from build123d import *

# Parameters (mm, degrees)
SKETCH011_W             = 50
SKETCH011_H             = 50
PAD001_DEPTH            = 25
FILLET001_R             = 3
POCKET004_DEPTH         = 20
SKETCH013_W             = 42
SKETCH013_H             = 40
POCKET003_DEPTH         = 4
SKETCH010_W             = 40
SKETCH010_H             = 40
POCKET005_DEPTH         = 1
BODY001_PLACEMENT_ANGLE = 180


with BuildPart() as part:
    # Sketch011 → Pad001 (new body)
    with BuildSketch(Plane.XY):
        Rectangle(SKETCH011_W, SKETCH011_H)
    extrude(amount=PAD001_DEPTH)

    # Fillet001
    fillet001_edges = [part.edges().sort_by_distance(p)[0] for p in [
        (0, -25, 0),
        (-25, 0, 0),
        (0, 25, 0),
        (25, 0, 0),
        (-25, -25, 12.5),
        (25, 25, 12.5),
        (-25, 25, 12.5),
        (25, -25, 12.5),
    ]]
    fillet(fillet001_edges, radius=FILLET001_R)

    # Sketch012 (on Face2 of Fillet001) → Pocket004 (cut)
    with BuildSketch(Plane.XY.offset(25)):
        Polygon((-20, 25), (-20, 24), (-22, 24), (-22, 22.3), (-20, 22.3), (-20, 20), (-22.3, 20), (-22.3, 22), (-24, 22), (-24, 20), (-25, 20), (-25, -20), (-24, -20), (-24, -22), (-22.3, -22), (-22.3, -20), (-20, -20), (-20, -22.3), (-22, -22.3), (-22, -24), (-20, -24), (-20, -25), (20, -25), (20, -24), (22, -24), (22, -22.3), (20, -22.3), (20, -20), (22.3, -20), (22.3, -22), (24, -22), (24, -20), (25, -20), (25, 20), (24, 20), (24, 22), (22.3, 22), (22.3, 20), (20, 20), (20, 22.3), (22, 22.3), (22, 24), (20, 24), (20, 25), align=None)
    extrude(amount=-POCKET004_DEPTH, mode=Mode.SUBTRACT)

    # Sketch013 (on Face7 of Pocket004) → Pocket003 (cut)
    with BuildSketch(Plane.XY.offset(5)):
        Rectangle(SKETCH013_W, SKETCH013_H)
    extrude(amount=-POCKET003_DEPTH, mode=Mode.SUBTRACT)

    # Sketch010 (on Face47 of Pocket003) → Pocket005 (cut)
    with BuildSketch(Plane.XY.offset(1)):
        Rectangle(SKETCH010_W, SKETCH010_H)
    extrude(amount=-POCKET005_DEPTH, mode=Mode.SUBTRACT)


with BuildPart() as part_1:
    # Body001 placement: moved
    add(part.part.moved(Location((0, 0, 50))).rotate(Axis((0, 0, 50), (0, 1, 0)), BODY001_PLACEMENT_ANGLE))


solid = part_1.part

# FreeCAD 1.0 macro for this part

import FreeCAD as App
import Part
import Sketcher
Q = App.Units.Quantity


def edges_at(feature, points):
    """Names of the edges that pass closest to the given points."""
    edges = feature.Shape.Edges
    near = lambda p: min(range(len(edges)), key=lambda i: edges[i].distToShape(Part.Vertex(*p))[0])
    return sorted({f"Edge{near(p) + 1}" for p in points})

doc = App.newDocument("Part")
params = doc.addObject("Spreadsheet::Sheet", "Params")
for row, (alias, value) in enumerate([
    ("sketch1_width", "50 mm"),
    ("pad1_length", "25 mm"),
    ("fillet_radius", "3 mm"),
    ("sketch2_width", "2 mm"),
    ("sketch2_width2", "1 mm"),
    ("sketch2_width3", "40 mm"),
    ("sketch2_width4", "2.3 mm"),
    ("sketch2_width5", "1.7 mm"),
    ("pocket1_length", "20 mm"),
    ("sketch3_width", "42 mm"),
    ("sketch3_height", "40 mm"),
    ("pocket2_length", "4 mm"),
    ("sketch4_width", "40 mm"),
    ("pocket3_length", "1 mm"),
], start=1):
    params.set(f"A{row}", alias)
    params.set(f"B{row}", "=" + value)
    params.setAlias(f"B{row}", alias)

body = doc.addObject("PartDesign::Body", "Body")

# Sketch on XY plane
sketch1 = body.newObject("Sketcher::SketchObject", "Sketch")
sketch1.AttachmentSupport = (doc.getObject("XY_Plane"), [""])
sketch1.MapMode = "FlatFace"
sketch1.addGeometry([
    Part.LineSegment(App.Vector(-25, 25, 0), App.Vector(-25, -25, 0)),
    Part.LineSegment(App.Vector(-25, -25, 0), App.Vector(25, -25, 0)),
    Part.LineSegment(App.Vector(25, -25, 0), App.Vector(25, 25, 0)),
    Part.LineSegment(App.Vector(25, 25, 0), App.Vector(-25, 25, 0)),
], False)
sketch1.addConstraint([
    Sketcher.Constraint("Coincident", 0, 2, 1, 1),
    Sketcher.Constraint("Coincident", 1, 2, 2, 1),
    Sketcher.Constraint("Coincident", 2, 2, 3, 1),
    Sketcher.Constraint("Coincident", 3, 2, 0, 1),
    Sketcher.Constraint("Vertical", 0),
    Sketcher.Constraint("Horizontal", 1),
    Sketcher.Constraint("Vertical", 2),
    Sketcher.Constraint("Horizontal", 3),
    Sketcher.Constraint("Symmetric", 0, 2, 2, 2, -1, 1),
    Sketcher.Constraint("Equal", 3, 0),
    Sketcher.Constraint("DistanceX", 1, 1, 1, 2, Q("50 mm")),
])
sketch1.setExpression("Constraints[10]", "Params.sketch1_width")
pad1 = body.newObject("PartDesign::Pad", "Pad")
pad1.Profile = sketch1
pad1.setExpression("Length", "Params.pad1_length")
doc.recompute()

fillet = body.newObject("PartDesign::Fillet", "Fillet")
fillet.Base = (pad1, edges_at(pad1, [
    (0, -25, 0),
    (-25, 0, 0),
    (0, 25, 0),
    (25, 0, 0),
    (-25, -25, 12.5),
    (25, 25, 12.5),
    (-25, 25, 12.5),
    (25, -25, 12.5),
]))
fillet.setExpression("Radius", "Params.fillet_radius")

# Sketch on XY plane
sketch2 = body.newObject("Sketcher::SketchObject", "Sketch001")
sketch2.AttachmentSupport = (doc.getObject("XY_Plane"), [""])
sketch2.MapMode = "FlatFace"
sketch2.AttachmentOffset = App.Placement(App.Vector(0, 0, 25), App.Rotation())
sketch2.addGeometry([
    Part.LineSegment(App.Vector(-20, 25, 0), App.Vector(-20, 24, 0)),  # 0
    Part.LineSegment(App.Vector(-20, 24, 0), App.Vector(-22, 24, 0)),  # 1
    Part.LineSegment(App.Vector(-22, 24, 0), App.Vector(-22, 22.3, 0)),  # 2
    Part.LineSegment(App.Vector(-22, 22.3, 0), App.Vector(-20, 22.3, 0)),  # 3
    Part.LineSegment(App.Vector(-20, 22.3, 0), App.Vector(-20, 20, 0)),  # 4
    Part.LineSegment(App.Vector(-20, 20, 0), App.Vector(-22.3, 20, 0)),  # 5
    Part.LineSegment(App.Vector(-22.3, 20, 0), App.Vector(-22.3, 22, 0)),  # 6
    Part.LineSegment(App.Vector(-22.3, 22, 0), App.Vector(-24, 22, 0)),  # 7
    Part.LineSegment(App.Vector(-24, 22, 0), App.Vector(-24, 20, 0)),  # 8
    Part.LineSegment(App.Vector(-24, 20, 0), App.Vector(-25, 20, 0)),  # 9
    Part.LineSegment(App.Vector(-25, 20, 0), App.Vector(-25, -20, 0)),  # 10
    Part.LineSegment(App.Vector(-25, -20, 0), App.Vector(-24, -20, 0)),  # 11
    Part.LineSegment(App.Vector(-24, -20, 0), App.Vector(-24, -22, 0)),  # 12
    Part.LineSegment(App.Vector(-24, -22, 0), App.Vector(-22.3, -22, 0)),  # 13
    Part.LineSegment(App.Vector(-22.3, -22, 0), App.Vector(-22.3, -20, 0)),  # 14
    Part.LineSegment(App.Vector(-22.3, -20, 0), App.Vector(-20, -20, 0)),  # 15
    Part.LineSegment(App.Vector(-20, -20, 0), App.Vector(-20, -22.3, 0)),  # 16
    Part.LineSegment(App.Vector(-20, -22.3, 0), App.Vector(-22, -22.3, 0)),  # 17
    Part.LineSegment(App.Vector(-22, -22.3, 0), App.Vector(-22, -24, 0)),  # 18
    Part.LineSegment(App.Vector(-22, -24, 0), App.Vector(-20, -24, 0)),  # 19
    Part.LineSegment(App.Vector(-20, -24, 0), App.Vector(-20, -25, 0)),  # 20
    Part.LineSegment(App.Vector(-20, -25, 0), App.Vector(20, -25, 0)),  # 21
    Part.LineSegment(App.Vector(20, -25, 0), App.Vector(20, -24, 0)),  # 22
    Part.LineSegment(App.Vector(20, -24, 0), App.Vector(22, -24, 0)),  # 23
    Part.LineSegment(App.Vector(22, -24, 0), App.Vector(22, -22.3, 0)),  # 24
    Part.LineSegment(App.Vector(22, -22.3, 0), App.Vector(20, -22.3, 0)),  # 25
    Part.LineSegment(App.Vector(20, -22.3, 0), App.Vector(20, -20, 0)),  # 26
    Part.LineSegment(App.Vector(20, -20, 0), App.Vector(22.3, -20, 0)),  # 27
    Part.LineSegment(App.Vector(22.3, -20, 0), App.Vector(22.3, -22, 0)),  # 28
    Part.LineSegment(App.Vector(22.3, -22, 0), App.Vector(24, -22, 0)),  # 29
    Part.LineSegment(App.Vector(24, -22, 0), App.Vector(24, -20, 0)),  # 30
    Part.LineSegment(App.Vector(24, -20, 0), App.Vector(25, -20, 0)),  # 31
    Part.LineSegment(App.Vector(25, -20, 0), App.Vector(25, 20, 0)),  # 32
    Part.LineSegment(App.Vector(25, 20, 0), App.Vector(24, 20, 0)),  # 33
    Part.LineSegment(App.Vector(24, 20, 0), App.Vector(24, 22, 0)),  # 34
    Part.LineSegment(App.Vector(24, 22, 0), App.Vector(22.3, 22, 0)),  # 35
    Part.LineSegment(App.Vector(22.3, 22, 0), App.Vector(22.3, 20, 0)),  # 36
    Part.LineSegment(App.Vector(22.3, 20, 0), App.Vector(20, 20, 0)),  # 37
    Part.LineSegment(App.Vector(20, 20, 0), App.Vector(20, 22.3, 0)),  # 38
    Part.LineSegment(App.Vector(20, 22.3, 0), App.Vector(22, 22.3, 0)),  # 39
    Part.LineSegment(App.Vector(22, 22.3, 0), App.Vector(22, 24, 0)),  # 40
    Part.LineSegment(App.Vector(22, 24, 0), App.Vector(20, 24, 0)),  # 41
    Part.LineSegment(App.Vector(20, 24, 0), App.Vector(20, 25, 0)),  # 42
    Part.LineSegment(App.Vector(20, 25, 0), App.Vector(-20, 25, 0)),  # 43
], False)
sketch2.addConstraint([
    Sketcher.Constraint("Coincident", 0, 2, 1, 1),
    Sketcher.Constraint("Coincident", 1, 2, 2, 1),
    Sketcher.Constraint("Coincident", 2, 2, 3, 1),
    Sketcher.Constraint("Coincident", 3, 2, 4, 1),
    Sketcher.Constraint("Coincident", 4, 2, 5, 1),
    Sketcher.Constraint("Coincident", 5, 2, 6, 1),
    Sketcher.Constraint("Coincident", 6, 2, 7, 1),
    Sketcher.Constraint("Coincident", 7, 2, 8, 1),
    Sketcher.Constraint("Coincident", 8, 2, 9, 1),
    Sketcher.Constraint("Coincident", 9, 2, 10, 1),
    Sketcher.Constraint("Coincident", 10, 2, 11, 1),
    Sketcher.Constraint("Coincident", 11, 2, 12, 1),
    Sketcher.Constraint("Coincident", 12, 2, 13, 1),
    Sketcher.Constraint("Coincident", 13, 2, 14, 1),
    Sketcher.Constraint("Coincident", 14, 2, 15, 1),
    Sketcher.Constraint("Coincident", 15, 2, 16, 1),
    Sketcher.Constraint("Coincident", 16, 2, 17, 1),
    Sketcher.Constraint("Coincident", 17, 2, 18, 1),
    Sketcher.Constraint("Coincident", 18, 2, 19, 1),
    Sketcher.Constraint("Coincident", 19, 2, 20, 1),
    Sketcher.Constraint("Coincident", 20, 2, 21, 1),
    Sketcher.Constraint("Coincident", 21, 2, 22, 1),
    Sketcher.Constraint("Coincident", 22, 2, 23, 1),
    Sketcher.Constraint("Coincident", 23, 2, 24, 1),
    Sketcher.Constraint("Coincident", 24, 2, 25, 1),
    Sketcher.Constraint("Coincident", 25, 2, 26, 1),
    Sketcher.Constraint("Coincident", 26, 2, 27, 1),
    Sketcher.Constraint("Coincident", 27, 2, 28, 1),
    Sketcher.Constraint("Coincident", 28, 2, 29, 1),
    Sketcher.Constraint("Coincident", 29, 2, 30, 1),
    Sketcher.Constraint("Coincident", 30, 2, 31, 1),
    Sketcher.Constraint("Coincident", 31, 2, 32, 1),
    Sketcher.Constraint("Coincident", 32, 2, 33, 1),
    Sketcher.Constraint("Coincident", 33, 2, 34, 1),
    Sketcher.Constraint("Coincident", 34, 2, 35, 1),
    Sketcher.Constraint("Coincident", 35, 2, 36, 1),
    Sketcher.Constraint("Coincident", 36, 2, 37, 1),
    Sketcher.Constraint("Coincident", 37, 2, 38, 1),
    Sketcher.Constraint("Coincident", 38, 2, 39, 1),
    Sketcher.Constraint("Coincident", 39, 2, 40, 1),
    Sketcher.Constraint("Coincident", 40, 2, 41, 1),
    Sketcher.Constraint("Coincident", 41, 2, 42, 1),
    Sketcher.Constraint("Coincident", 42, 2, 43, 1),
    Sketcher.Constraint("Coincident", 43, 2, 0, 1),
    Sketcher.Constraint("Vertical", 0),
    Sketcher.Constraint("Horizontal", 1),
    Sketcher.Constraint("Vertical", 2),
    Sketcher.Constraint("Horizontal", 3),
    Sketcher.Constraint("Vertical", 4),
    Sketcher.Constraint("Horizontal", 5),
    Sketcher.Constraint("Vertical", 6),
    Sketcher.Constraint("Horizontal", 7),
    Sketcher.Constraint("Vertical", 8),
    Sketcher.Constraint("Horizontal", 9),
    Sketcher.Constraint("Vertical", 10),
    Sketcher.Constraint("Horizontal", 11),
    Sketcher.Constraint("Vertical", 12),
    Sketcher.Constraint("Horizontal", 13),
    Sketcher.Constraint("Vertical", 14),
    Sketcher.Constraint("Horizontal", 15),
    Sketcher.Constraint("Vertical", 16),
    Sketcher.Constraint("Horizontal", 17),
    Sketcher.Constraint("Vertical", 18),
    Sketcher.Constraint("Horizontal", 19),
    Sketcher.Constraint("Vertical", 20),
    Sketcher.Constraint("Horizontal", 21),
    Sketcher.Constraint("Vertical", 22),
    Sketcher.Constraint("Horizontal", 23),
    Sketcher.Constraint("Vertical", 24),
    Sketcher.Constraint("Horizontal", 25),
    Sketcher.Constraint("Vertical", 26),
    Sketcher.Constraint("Horizontal", 27),
    Sketcher.Constraint("Vertical", 28),
    Sketcher.Constraint("Horizontal", 29),
    Sketcher.Constraint("Vertical", 30),
    Sketcher.Constraint("Horizontal", 31),
    Sketcher.Constraint("Vertical", 32),
    Sketcher.Constraint("Horizontal", 33),
    Sketcher.Constraint("Vertical", 34),
    Sketcher.Constraint("Horizontal", 35),
    Sketcher.Constraint("Vertical", 36),
    Sketcher.Constraint("Horizontal", 37),
    Sketcher.Constraint("Vertical", 38),
    Sketcher.Constraint("Horizontal", 39),
    Sketcher.Constraint("Vertical", 40),
    Sketcher.Constraint("Horizontal", 41),
    Sketcher.Constraint("Vertical", 42),
    Sketcher.Constraint("Horizontal", 43),
    Sketcher.Constraint("Symmetric", 0, 2, 22, 2, -1, 1),
    Sketcher.Constraint("Symmetric", 2, 2, 24, 2, -1, 1),
    Sketcher.Constraint("Symmetric", 4, 2, 26, 2, -1, 1),
    Sketcher.Constraint("Symmetric", 6, 2, 28, 2, -1, 1),
    Sketcher.Constraint("Symmetric", 8, 2, 30, 2, -1, 1),
    Sketcher.Constraint("Symmetric", 10, 2, 32, 2, -1, 1),
    Sketcher.Constraint("Symmetric", 12, 2, 34, 2, -1, 1),
    Sketcher.Constraint("Symmetric", 14, 2, 36, 2, -1, 1),
    Sketcher.Constraint("Symmetric", 16, 2, 38, 2, -1, 1),
    Sketcher.Constraint("Symmetric", 18, 2, 40, 2, -1, 1),
    Sketcher.Constraint("Symmetric", 20, 2, 42, 2, -1, 1),
    Sketcher.Constraint("Symmetric", 19, 2, 22, 2, -2),
    Sketcher.Constraint("Symmetric", 17, 2, 24, 2, -2),
    Sketcher.Constraint("Symmetric", 15, 2, 26, 2, -2),
    Sketcher.Constraint("Symmetric", 13, 2, 28, 2, -2),
    Sketcher.Constraint("Symmetric", 11, 2, 30, 2, -2),
    Sketcher.Constraint("Horizontal", 5, 2, 8, 2),
    Sketcher.Constraint("Vertical", 0, 2, 3, 2),
    Sketcher.Constraint("Equal", 33, 0),
    Sketcher.Constraint("Equal", 35, 2),
    Sketcher.Constraint("Equal", 37, 4),
    Sketcher.Constraint("Equal", 41, 6),
    Sketcher.Constraint("Equal", 43, 10),
    Sketcher.Constraint("DistanceX", 1, 2, 1, 1, Q("2 mm")),
    Sketcher.Constraint("DistanceX", 9, 2, 9, 1, Q("1 mm")),
    Sketcher.Constraint("DistanceX", 21, 1, 21, 2, Q("40 mm")),
    Sketcher.Constraint("DistanceX", 5, 2, 5, 1, Q("2.3 mm")),
    Sketcher.Constraint("DistanceX", 7, 2, 7, 1, Q("1.7 mm")),
])
sketch2.setExpression("Constraints[111]", "Params.sketch2_width")
sketch2.setExpression("Constraints[112]", "Params.sketch2_width2")
sketch2.setExpression("Constraints[113]", "Params.sketch2_width3")
sketch2.setExpression("Constraints[114]", "Params.sketch2_width4")
sketch2.setExpression("Constraints[115]", "Params.sketch2_width5")
pocket1 = body.newObject("PartDesign::Pocket", "Pocket")
pocket1.Profile = sketch2
pocket1.setExpression("Length", "Params.pocket1_length")

# Sketch on XY plane
sketch3 = body.newObject("Sketcher::SketchObject", "Sketch002")
sketch3.AttachmentSupport = (doc.getObject("XY_Plane"), [""])
sketch3.MapMode = "FlatFace"
sketch3.AttachmentOffset = App.Placement(App.Vector(0, 0, 5), App.Rotation())
sketch3.addGeometry([
    Part.LineSegment(App.Vector(-21, 20, 0), App.Vector(-21, -20, 0)),
    Part.LineSegment(App.Vector(-21, -20, 0), App.Vector(21, -20, 0)),
    Part.LineSegment(App.Vector(21, -20, 0), App.Vector(21, 20, 0)),
    Part.LineSegment(App.Vector(21, 20, 0), App.Vector(-21, 20, 0)),
], False)
sketch3.addConstraint([
    Sketcher.Constraint("Coincident", 0, 2, 1, 1),
    Sketcher.Constraint("Coincident", 1, 2, 2, 1),
    Sketcher.Constraint("Coincident", 2, 2, 3, 1),
    Sketcher.Constraint("Coincident", 3, 2, 0, 1),
    Sketcher.Constraint("Vertical", 0),
    Sketcher.Constraint("Horizontal", 1),
    Sketcher.Constraint("Vertical", 2),
    Sketcher.Constraint("Horizontal", 3),
    Sketcher.Constraint("Symmetric", 0, 2, 2, 2, -1, 1),
    Sketcher.Constraint("DistanceX", 1, 1, 1, 2, Q("42 mm")),
    Sketcher.Constraint("DistanceY", 0, 2, 0, 1, Q("40 mm")),
])
sketch3.setExpression("Constraints[9]", "Params.sketch3_width")
sketch3.setExpression("Constraints[10]", "Params.sketch3_height")
pocket2 = body.newObject("PartDesign::Pocket", "Pocket001")
pocket2.Profile = sketch3
pocket2.setExpression("Length", "Params.pocket2_length")

# Sketch on XY plane
sketch4 = body.newObject("Sketcher::SketchObject", "Sketch003")
sketch4.AttachmentSupport = (doc.getObject("XY_Plane"), [""])
sketch4.MapMode = "FlatFace"
sketch4.AttachmentOffset = App.Placement(App.Vector(0, 0, 1), App.Rotation())
sketch4.addGeometry([
    Part.LineSegment(App.Vector(-20, 20, 0), App.Vector(-20, -20, 0)),
    Part.LineSegment(App.Vector(-20, -20, 0), App.Vector(20, -20, 0)),
    Part.LineSegment(App.Vector(20, -20, 0), App.Vector(20, 20, 0)),
    Part.LineSegment(App.Vector(20, 20, 0), App.Vector(-20, 20, 0)),
], False)
sketch4.addConstraint([
    Sketcher.Constraint("Coincident", 0, 2, 1, 1),
    Sketcher.Constraint("Coincident", 1, 2, 2, 1),
    Sketcher.Constraint("Coincident", 2, 2, 3, 1),
    Sketcher.Constraint("Coincident", 3, 2, 0, 1),
    Sketcher.Constraint("Vertical", 0),
    Sketcher.Constraint("Horizontal", 1),
    Sketcher.Constraint("Vertical", 2),
    Sketcher.Constraint("Horizontal", 3),
    Sketcher.Constraint("Symmetric", 0, 2, 2, 2, -1, 1),
    Sketcher.Constraint("Equal", 3, 0),
    Sketcher.Constraint("DistanceX", 1, 1, 1, 2, Q("40 mm")),
])
sketch4.setExpression("Constraints[10]", "Params.sketch4_width")
pocket3 = body.newObject("PartDesign::Pocket", "Pocket002")
pocket3.Profile = sketch4
pocket3.setExpression("Length", "Params.pocket3_length")
body2 = doc.addObject("PartDesign::Body", "Body001")
doc.recompute()

body.Placement = App.Placement(App.Vector(0, 0, 50), App.Rotation(App.Vector(0, 1, 0), 180))
boolean = body2.newObject("PartDesign::Boolean", "Boolean")
boolean.Type = "Fuse"
boolean.addObjects([body])

doc.recompute()
